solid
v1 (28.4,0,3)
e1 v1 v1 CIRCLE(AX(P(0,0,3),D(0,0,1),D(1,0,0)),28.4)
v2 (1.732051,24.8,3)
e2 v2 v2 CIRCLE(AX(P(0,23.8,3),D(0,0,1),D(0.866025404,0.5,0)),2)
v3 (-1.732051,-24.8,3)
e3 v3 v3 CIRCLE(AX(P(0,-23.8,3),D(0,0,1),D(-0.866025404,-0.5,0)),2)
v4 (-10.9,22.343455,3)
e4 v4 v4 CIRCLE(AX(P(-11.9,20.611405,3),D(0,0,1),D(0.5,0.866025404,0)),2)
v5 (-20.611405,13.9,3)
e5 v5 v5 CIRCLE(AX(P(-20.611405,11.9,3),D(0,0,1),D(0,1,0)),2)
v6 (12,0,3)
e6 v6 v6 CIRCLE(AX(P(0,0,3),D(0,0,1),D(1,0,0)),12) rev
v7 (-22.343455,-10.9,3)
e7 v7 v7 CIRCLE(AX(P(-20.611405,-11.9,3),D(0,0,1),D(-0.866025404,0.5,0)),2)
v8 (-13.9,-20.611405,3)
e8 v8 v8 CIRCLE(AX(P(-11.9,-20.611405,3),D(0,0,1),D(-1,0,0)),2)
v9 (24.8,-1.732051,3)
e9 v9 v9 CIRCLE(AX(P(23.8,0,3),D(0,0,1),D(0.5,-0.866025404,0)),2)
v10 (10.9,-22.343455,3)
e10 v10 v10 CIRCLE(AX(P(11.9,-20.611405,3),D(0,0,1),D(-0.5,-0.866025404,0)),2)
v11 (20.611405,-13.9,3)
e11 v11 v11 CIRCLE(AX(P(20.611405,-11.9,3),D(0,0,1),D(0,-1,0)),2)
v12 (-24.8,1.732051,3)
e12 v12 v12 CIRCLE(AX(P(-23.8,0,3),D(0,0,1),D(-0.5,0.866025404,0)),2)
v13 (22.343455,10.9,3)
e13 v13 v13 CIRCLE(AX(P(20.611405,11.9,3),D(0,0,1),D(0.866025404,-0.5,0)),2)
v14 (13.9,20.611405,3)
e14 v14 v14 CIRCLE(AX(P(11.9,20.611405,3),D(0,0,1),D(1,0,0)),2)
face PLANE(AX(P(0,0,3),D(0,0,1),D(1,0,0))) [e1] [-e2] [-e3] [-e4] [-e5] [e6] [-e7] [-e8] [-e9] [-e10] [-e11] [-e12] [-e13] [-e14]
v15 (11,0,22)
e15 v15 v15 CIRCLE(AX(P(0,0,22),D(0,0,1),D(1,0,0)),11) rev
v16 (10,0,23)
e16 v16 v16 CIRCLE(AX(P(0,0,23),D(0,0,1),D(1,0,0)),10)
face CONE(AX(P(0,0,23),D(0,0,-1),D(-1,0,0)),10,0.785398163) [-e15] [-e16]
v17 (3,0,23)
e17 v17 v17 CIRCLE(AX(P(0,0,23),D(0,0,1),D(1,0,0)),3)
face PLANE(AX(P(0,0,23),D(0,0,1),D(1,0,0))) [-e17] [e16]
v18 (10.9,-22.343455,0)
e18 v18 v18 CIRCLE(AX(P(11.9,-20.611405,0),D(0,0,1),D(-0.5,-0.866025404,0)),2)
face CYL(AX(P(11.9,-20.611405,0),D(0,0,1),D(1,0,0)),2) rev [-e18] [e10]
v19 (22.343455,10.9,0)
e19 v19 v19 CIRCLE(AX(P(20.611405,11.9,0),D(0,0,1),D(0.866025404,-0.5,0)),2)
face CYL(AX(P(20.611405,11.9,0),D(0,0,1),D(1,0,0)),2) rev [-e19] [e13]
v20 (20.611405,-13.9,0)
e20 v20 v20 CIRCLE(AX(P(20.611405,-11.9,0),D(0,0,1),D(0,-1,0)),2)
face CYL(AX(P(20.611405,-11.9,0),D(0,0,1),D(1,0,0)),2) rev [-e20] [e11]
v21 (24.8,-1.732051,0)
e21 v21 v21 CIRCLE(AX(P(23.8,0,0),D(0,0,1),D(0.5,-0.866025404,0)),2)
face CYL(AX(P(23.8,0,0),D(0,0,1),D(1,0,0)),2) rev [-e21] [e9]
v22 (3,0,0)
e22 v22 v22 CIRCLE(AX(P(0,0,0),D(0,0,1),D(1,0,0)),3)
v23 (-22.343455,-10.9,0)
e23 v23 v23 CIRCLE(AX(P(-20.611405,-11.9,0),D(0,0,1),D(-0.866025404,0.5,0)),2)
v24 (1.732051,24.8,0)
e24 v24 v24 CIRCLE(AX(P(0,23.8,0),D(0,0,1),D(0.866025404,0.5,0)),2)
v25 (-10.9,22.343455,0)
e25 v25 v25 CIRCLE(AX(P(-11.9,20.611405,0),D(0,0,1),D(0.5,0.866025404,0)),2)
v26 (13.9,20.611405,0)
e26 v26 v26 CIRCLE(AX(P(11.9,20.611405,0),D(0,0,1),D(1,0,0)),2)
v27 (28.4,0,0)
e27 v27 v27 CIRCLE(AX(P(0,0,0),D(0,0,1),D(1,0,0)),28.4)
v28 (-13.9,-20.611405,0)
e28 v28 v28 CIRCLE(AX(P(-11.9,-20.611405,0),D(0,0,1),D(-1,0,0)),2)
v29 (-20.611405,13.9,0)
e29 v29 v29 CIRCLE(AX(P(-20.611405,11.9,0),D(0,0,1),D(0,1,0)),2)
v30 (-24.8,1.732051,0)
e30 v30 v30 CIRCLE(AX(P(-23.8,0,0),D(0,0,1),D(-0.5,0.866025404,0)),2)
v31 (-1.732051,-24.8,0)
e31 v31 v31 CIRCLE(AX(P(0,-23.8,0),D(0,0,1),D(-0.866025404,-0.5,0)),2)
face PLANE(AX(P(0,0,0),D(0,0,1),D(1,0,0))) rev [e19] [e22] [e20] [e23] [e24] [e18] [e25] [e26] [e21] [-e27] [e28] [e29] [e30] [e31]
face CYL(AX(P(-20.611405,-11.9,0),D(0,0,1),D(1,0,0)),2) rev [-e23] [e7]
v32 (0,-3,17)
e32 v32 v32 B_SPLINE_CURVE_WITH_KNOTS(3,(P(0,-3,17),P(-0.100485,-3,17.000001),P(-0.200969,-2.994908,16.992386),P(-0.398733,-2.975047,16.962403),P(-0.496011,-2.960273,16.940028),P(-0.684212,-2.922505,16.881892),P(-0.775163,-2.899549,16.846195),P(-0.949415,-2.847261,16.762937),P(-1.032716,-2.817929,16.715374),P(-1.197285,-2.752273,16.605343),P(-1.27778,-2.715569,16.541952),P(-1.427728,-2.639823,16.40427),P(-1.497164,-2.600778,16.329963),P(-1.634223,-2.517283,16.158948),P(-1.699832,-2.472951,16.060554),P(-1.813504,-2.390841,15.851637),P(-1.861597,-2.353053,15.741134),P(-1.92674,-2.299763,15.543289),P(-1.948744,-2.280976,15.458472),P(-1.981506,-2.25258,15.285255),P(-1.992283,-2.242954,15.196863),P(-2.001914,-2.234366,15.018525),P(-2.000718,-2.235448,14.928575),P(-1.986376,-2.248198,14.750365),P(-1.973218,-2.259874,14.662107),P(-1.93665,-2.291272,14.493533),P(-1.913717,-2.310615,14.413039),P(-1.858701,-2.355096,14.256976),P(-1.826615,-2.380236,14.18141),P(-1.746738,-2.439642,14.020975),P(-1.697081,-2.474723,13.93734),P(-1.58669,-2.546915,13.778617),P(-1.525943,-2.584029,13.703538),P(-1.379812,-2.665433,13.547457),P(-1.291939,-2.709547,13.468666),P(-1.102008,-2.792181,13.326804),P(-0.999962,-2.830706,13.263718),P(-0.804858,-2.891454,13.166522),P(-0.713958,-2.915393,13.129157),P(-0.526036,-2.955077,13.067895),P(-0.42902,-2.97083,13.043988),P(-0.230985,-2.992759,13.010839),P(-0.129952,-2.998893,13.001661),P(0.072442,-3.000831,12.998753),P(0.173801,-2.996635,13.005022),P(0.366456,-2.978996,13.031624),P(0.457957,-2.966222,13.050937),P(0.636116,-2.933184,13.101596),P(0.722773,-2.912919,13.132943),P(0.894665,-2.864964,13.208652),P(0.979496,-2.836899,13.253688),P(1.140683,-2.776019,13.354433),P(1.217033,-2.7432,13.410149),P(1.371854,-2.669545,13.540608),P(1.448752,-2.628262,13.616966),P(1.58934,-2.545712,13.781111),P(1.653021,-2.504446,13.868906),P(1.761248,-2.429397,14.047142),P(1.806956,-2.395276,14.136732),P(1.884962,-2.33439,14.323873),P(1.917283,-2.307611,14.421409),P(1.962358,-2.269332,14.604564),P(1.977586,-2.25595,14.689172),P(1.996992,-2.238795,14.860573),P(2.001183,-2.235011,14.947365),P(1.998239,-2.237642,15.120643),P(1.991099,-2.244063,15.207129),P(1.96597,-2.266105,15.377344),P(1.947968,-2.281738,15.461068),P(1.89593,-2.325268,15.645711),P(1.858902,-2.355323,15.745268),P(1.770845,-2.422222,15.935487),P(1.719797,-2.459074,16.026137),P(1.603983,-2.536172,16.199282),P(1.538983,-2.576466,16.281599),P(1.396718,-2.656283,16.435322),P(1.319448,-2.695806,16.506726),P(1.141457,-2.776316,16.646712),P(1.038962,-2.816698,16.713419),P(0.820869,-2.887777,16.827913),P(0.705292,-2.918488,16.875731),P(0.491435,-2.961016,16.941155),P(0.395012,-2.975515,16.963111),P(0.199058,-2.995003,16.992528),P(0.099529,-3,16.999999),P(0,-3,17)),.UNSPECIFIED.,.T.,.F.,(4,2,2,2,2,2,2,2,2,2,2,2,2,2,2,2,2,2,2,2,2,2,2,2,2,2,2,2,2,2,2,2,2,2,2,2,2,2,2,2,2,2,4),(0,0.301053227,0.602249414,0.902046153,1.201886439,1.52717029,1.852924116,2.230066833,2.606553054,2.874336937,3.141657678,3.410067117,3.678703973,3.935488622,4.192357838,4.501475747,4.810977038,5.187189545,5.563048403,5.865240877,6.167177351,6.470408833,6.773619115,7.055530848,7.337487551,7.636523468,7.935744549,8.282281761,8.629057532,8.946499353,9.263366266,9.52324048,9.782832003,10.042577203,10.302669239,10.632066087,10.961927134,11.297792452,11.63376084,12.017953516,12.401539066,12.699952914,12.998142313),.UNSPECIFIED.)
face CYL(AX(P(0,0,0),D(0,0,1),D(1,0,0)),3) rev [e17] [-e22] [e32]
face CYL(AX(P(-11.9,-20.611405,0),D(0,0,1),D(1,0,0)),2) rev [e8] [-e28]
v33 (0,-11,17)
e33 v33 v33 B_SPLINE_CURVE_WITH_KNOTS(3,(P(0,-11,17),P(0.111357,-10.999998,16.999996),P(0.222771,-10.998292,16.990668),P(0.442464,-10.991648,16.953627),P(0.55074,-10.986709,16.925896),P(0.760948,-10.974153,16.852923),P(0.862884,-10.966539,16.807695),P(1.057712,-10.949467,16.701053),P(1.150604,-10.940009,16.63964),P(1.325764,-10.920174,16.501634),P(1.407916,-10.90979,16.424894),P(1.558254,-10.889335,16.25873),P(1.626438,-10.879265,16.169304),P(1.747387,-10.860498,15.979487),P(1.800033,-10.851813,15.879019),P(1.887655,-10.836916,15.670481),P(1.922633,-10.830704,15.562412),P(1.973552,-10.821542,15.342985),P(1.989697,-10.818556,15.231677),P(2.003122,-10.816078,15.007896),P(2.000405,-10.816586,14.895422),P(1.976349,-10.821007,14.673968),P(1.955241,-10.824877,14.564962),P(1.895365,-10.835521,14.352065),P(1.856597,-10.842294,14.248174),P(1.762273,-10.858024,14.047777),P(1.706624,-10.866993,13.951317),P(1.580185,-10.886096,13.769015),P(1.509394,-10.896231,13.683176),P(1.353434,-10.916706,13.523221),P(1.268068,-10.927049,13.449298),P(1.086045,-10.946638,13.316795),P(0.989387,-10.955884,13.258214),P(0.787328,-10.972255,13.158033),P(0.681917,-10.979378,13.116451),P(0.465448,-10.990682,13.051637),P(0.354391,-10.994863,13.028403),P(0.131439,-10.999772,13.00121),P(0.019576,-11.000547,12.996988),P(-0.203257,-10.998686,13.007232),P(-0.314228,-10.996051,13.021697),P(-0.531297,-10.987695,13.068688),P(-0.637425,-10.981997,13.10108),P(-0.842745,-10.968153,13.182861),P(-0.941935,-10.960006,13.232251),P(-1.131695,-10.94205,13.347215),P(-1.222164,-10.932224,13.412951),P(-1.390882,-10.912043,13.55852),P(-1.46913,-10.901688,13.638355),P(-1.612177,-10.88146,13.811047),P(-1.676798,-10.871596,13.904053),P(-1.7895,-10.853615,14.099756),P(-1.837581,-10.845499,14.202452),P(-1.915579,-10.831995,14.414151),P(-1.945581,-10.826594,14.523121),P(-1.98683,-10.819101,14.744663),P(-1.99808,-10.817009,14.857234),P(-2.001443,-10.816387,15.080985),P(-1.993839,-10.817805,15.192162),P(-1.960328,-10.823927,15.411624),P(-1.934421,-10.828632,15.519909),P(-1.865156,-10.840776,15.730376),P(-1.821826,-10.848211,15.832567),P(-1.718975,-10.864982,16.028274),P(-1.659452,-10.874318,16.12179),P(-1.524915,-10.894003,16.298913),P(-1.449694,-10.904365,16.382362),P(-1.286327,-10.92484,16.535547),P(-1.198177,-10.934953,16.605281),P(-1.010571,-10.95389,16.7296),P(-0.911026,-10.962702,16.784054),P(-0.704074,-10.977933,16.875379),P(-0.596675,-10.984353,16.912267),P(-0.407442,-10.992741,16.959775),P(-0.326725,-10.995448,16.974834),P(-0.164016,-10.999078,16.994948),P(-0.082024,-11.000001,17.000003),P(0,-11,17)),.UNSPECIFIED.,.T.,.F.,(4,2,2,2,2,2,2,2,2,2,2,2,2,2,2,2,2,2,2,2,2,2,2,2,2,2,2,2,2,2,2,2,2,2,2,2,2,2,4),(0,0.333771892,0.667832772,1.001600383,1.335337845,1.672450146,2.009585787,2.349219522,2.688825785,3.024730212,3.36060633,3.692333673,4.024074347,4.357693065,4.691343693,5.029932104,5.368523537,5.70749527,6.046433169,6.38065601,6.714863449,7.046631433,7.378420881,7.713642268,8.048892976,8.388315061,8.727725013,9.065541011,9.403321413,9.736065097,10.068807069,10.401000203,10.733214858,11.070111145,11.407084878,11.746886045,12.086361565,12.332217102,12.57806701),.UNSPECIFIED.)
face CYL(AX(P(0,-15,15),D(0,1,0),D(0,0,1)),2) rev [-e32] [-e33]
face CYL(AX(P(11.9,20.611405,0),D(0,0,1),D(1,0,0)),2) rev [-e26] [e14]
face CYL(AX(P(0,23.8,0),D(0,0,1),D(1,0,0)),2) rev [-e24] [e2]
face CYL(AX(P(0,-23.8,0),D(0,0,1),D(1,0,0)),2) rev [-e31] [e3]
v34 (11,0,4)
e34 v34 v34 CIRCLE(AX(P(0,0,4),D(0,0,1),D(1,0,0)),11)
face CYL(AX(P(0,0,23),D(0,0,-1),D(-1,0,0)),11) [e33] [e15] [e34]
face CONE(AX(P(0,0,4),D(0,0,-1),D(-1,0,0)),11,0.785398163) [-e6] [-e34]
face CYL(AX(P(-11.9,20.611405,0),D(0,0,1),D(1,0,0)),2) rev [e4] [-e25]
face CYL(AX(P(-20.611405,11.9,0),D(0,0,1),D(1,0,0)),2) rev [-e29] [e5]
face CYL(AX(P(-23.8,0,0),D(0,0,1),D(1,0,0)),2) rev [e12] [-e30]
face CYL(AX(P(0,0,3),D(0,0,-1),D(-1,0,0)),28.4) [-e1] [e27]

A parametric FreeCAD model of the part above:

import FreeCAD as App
import Part
import Sketcher
from FreeCAD import Vector


def edges_at(feature, points):
    """Names of the edges that pass closest to the given points."""
    edges = feature.Shape.Edges
    near = lambda p: min(range(len(edges)), key=lambda i: edges[i].distToShape(Part.Vertex(*p))[0])
    return sorted({f"Edge{near(p) + 1}" for p in points})

doc = App.newDocument("Part")
body = doc.addObject("PartDesign::Body", "Body")

# Sketch on XY plane
sketch1 = body.newObject("Sketcher::SketchObject", "Sketch")
sketch1.AttachmentSupport = (doc.getObject("XY_Plane"), [""])
sketch1.MapMode = "FlatFace"
sketch1.addGeometry(Part.Circle(Vector(0, 0, 0), Vector(0, 0, 1), 28), False)
sketch1.addConstraint([
    Sketcher.Constraint("Coincident", 0, 3, -1, 1),
    Sketcher.Constraint("Diameter", 0, 56.8),
])
pad1 = body.newObject("PartDesign::Pad", "Pad")
pad1.Profile = sketch1
pad1.Length = 3

# Sketch on XY plane
sketch2 = body.newObject("Sketcher::SketchObject", "Sketch001")
sketch2.AttachmentSupport = (doc.getObject("XY_Plane"), [""])
sketch2.MapMode = "FlatFace"
sketch2.AttachmentOffset = App.Placement(Vector(0, 0, 3), App.Rotation())
sketch2.addGeometry(Part.Circle(Vector(0, 0, 0), Vector(0, 0, 1), 11), False)
sketch2.addConstraint([
    Sketcher.Constraint("Coincident", 0, 3, -1, 1),
    Sketcher.Constraint("Diameter", 0, 22.0),
])
pad2 = body.newObject("PartDesign::Pad", "Pad001")
pad2.Profile = sketch2
pad2.Length = 20

# Sketch on XY plane
sketch3 = body.newObject("Sketcher::SketchObject", "Sketch002")
sketch3.AttachmentSupport = (doc.getObject("XY_Plane"), [""])
sketch3.MapMode = "FlatFace"
sketch3.AttachmentOffset = App.Placement(Vector(0, 0, 23), App.Rotation())
sketch3.addGeometry(Part.Circle(Vector(0, 0, 0), Vector(0, 0, 1), 3), False)
sketch3.addConstraint([
    Sketcher.Constraint("Coincident", 0, 3, -1, 1),
    Sketcher.Constraint("Diameter", 0, 6.0),
])
pocket1 = body.newObject("PartDesign::Pocket", "Pocket")
pocket1.Profile = sketch3
pocket1.Type = "ThroughAll"

# Sketch on XZ plane
sketch4 = body.newObject("Sketcher::SketchObject", "Sketch003")
sketch4.AttachmentSupport = (doc.getObject("XZ_Plane"), [""])
sketch4.MapMode = "FlatFace"
sketch4.addGeometry(Part.Circle(Vector(0, 15, 0), Vector(0, 0, 1), 2), False)
sketch4.addConstraint([
    Sketcher.Constraint("PointOnObject", 0, 3, -2),
    Sketcher.Constraint("Diameter", 0, 4.0),
    Sketcher.Constraint("DistanceY", -1, 1, 0, 3, 15.0),
])
pocket2 = body.newObject("PartDesign::Pocket", "Pocket001")
pocket2.Profile = sketch4
pocket2.Length = 15
pocket2.Reversed = True
doc.recompute()

chamfer = body.newObject("PartDesign::Chamfer", "Chamfer")
chamfer.Base = (pocket2, edges_at(pocket2, [(-11, 0, 3), (-11, 0, 23)]))
chamfer.Size = 1

# Sketch on XY plane
sketch5 = body.newObject("Sketcher::SketchObject", "Sketch004")
sketch5.AttachmentSupport = (doc.getObject("XY_Plane"), [""])
sketch5.MapMode = "FlatFace"
sketch5.AttachmentOffset = App.Placement(Vector(0, 0, 3), App.Rotation())
sketch5.addGeometry(Part.Circle(Vector(11.9, 20.6, 0), Vector(0, 0, 1), 2), False)
sketch5.addConstraint([
    Sketcher.Constraint("Diameter", 0, 4.0),
    Sketcher.Constraint("DistanceX", -1, 1, 0, 3, 11.9),
    Sketcher.Constraint("DistanceY", -1, 1, 0, 3, 20.611405),
])
pocket3 = body.newObject("PartDesign::Pocket", "Pocket002")
pocket3.Profile = sketch5
pocket3.Type = "ThroughAll"
doc.recompute()

polarpattern = body.newObject("PartDesign::PolarPattern", "PolarPattern")
polarpattern.Originals = [pocket3]
polarpattern.Axis = (doc.getObject("Z_Axis"), [""])
polarpattern.Angle = 360
polarpattern.Occurrences = 12
body.Tip = polarpattern

doc.recompute()
